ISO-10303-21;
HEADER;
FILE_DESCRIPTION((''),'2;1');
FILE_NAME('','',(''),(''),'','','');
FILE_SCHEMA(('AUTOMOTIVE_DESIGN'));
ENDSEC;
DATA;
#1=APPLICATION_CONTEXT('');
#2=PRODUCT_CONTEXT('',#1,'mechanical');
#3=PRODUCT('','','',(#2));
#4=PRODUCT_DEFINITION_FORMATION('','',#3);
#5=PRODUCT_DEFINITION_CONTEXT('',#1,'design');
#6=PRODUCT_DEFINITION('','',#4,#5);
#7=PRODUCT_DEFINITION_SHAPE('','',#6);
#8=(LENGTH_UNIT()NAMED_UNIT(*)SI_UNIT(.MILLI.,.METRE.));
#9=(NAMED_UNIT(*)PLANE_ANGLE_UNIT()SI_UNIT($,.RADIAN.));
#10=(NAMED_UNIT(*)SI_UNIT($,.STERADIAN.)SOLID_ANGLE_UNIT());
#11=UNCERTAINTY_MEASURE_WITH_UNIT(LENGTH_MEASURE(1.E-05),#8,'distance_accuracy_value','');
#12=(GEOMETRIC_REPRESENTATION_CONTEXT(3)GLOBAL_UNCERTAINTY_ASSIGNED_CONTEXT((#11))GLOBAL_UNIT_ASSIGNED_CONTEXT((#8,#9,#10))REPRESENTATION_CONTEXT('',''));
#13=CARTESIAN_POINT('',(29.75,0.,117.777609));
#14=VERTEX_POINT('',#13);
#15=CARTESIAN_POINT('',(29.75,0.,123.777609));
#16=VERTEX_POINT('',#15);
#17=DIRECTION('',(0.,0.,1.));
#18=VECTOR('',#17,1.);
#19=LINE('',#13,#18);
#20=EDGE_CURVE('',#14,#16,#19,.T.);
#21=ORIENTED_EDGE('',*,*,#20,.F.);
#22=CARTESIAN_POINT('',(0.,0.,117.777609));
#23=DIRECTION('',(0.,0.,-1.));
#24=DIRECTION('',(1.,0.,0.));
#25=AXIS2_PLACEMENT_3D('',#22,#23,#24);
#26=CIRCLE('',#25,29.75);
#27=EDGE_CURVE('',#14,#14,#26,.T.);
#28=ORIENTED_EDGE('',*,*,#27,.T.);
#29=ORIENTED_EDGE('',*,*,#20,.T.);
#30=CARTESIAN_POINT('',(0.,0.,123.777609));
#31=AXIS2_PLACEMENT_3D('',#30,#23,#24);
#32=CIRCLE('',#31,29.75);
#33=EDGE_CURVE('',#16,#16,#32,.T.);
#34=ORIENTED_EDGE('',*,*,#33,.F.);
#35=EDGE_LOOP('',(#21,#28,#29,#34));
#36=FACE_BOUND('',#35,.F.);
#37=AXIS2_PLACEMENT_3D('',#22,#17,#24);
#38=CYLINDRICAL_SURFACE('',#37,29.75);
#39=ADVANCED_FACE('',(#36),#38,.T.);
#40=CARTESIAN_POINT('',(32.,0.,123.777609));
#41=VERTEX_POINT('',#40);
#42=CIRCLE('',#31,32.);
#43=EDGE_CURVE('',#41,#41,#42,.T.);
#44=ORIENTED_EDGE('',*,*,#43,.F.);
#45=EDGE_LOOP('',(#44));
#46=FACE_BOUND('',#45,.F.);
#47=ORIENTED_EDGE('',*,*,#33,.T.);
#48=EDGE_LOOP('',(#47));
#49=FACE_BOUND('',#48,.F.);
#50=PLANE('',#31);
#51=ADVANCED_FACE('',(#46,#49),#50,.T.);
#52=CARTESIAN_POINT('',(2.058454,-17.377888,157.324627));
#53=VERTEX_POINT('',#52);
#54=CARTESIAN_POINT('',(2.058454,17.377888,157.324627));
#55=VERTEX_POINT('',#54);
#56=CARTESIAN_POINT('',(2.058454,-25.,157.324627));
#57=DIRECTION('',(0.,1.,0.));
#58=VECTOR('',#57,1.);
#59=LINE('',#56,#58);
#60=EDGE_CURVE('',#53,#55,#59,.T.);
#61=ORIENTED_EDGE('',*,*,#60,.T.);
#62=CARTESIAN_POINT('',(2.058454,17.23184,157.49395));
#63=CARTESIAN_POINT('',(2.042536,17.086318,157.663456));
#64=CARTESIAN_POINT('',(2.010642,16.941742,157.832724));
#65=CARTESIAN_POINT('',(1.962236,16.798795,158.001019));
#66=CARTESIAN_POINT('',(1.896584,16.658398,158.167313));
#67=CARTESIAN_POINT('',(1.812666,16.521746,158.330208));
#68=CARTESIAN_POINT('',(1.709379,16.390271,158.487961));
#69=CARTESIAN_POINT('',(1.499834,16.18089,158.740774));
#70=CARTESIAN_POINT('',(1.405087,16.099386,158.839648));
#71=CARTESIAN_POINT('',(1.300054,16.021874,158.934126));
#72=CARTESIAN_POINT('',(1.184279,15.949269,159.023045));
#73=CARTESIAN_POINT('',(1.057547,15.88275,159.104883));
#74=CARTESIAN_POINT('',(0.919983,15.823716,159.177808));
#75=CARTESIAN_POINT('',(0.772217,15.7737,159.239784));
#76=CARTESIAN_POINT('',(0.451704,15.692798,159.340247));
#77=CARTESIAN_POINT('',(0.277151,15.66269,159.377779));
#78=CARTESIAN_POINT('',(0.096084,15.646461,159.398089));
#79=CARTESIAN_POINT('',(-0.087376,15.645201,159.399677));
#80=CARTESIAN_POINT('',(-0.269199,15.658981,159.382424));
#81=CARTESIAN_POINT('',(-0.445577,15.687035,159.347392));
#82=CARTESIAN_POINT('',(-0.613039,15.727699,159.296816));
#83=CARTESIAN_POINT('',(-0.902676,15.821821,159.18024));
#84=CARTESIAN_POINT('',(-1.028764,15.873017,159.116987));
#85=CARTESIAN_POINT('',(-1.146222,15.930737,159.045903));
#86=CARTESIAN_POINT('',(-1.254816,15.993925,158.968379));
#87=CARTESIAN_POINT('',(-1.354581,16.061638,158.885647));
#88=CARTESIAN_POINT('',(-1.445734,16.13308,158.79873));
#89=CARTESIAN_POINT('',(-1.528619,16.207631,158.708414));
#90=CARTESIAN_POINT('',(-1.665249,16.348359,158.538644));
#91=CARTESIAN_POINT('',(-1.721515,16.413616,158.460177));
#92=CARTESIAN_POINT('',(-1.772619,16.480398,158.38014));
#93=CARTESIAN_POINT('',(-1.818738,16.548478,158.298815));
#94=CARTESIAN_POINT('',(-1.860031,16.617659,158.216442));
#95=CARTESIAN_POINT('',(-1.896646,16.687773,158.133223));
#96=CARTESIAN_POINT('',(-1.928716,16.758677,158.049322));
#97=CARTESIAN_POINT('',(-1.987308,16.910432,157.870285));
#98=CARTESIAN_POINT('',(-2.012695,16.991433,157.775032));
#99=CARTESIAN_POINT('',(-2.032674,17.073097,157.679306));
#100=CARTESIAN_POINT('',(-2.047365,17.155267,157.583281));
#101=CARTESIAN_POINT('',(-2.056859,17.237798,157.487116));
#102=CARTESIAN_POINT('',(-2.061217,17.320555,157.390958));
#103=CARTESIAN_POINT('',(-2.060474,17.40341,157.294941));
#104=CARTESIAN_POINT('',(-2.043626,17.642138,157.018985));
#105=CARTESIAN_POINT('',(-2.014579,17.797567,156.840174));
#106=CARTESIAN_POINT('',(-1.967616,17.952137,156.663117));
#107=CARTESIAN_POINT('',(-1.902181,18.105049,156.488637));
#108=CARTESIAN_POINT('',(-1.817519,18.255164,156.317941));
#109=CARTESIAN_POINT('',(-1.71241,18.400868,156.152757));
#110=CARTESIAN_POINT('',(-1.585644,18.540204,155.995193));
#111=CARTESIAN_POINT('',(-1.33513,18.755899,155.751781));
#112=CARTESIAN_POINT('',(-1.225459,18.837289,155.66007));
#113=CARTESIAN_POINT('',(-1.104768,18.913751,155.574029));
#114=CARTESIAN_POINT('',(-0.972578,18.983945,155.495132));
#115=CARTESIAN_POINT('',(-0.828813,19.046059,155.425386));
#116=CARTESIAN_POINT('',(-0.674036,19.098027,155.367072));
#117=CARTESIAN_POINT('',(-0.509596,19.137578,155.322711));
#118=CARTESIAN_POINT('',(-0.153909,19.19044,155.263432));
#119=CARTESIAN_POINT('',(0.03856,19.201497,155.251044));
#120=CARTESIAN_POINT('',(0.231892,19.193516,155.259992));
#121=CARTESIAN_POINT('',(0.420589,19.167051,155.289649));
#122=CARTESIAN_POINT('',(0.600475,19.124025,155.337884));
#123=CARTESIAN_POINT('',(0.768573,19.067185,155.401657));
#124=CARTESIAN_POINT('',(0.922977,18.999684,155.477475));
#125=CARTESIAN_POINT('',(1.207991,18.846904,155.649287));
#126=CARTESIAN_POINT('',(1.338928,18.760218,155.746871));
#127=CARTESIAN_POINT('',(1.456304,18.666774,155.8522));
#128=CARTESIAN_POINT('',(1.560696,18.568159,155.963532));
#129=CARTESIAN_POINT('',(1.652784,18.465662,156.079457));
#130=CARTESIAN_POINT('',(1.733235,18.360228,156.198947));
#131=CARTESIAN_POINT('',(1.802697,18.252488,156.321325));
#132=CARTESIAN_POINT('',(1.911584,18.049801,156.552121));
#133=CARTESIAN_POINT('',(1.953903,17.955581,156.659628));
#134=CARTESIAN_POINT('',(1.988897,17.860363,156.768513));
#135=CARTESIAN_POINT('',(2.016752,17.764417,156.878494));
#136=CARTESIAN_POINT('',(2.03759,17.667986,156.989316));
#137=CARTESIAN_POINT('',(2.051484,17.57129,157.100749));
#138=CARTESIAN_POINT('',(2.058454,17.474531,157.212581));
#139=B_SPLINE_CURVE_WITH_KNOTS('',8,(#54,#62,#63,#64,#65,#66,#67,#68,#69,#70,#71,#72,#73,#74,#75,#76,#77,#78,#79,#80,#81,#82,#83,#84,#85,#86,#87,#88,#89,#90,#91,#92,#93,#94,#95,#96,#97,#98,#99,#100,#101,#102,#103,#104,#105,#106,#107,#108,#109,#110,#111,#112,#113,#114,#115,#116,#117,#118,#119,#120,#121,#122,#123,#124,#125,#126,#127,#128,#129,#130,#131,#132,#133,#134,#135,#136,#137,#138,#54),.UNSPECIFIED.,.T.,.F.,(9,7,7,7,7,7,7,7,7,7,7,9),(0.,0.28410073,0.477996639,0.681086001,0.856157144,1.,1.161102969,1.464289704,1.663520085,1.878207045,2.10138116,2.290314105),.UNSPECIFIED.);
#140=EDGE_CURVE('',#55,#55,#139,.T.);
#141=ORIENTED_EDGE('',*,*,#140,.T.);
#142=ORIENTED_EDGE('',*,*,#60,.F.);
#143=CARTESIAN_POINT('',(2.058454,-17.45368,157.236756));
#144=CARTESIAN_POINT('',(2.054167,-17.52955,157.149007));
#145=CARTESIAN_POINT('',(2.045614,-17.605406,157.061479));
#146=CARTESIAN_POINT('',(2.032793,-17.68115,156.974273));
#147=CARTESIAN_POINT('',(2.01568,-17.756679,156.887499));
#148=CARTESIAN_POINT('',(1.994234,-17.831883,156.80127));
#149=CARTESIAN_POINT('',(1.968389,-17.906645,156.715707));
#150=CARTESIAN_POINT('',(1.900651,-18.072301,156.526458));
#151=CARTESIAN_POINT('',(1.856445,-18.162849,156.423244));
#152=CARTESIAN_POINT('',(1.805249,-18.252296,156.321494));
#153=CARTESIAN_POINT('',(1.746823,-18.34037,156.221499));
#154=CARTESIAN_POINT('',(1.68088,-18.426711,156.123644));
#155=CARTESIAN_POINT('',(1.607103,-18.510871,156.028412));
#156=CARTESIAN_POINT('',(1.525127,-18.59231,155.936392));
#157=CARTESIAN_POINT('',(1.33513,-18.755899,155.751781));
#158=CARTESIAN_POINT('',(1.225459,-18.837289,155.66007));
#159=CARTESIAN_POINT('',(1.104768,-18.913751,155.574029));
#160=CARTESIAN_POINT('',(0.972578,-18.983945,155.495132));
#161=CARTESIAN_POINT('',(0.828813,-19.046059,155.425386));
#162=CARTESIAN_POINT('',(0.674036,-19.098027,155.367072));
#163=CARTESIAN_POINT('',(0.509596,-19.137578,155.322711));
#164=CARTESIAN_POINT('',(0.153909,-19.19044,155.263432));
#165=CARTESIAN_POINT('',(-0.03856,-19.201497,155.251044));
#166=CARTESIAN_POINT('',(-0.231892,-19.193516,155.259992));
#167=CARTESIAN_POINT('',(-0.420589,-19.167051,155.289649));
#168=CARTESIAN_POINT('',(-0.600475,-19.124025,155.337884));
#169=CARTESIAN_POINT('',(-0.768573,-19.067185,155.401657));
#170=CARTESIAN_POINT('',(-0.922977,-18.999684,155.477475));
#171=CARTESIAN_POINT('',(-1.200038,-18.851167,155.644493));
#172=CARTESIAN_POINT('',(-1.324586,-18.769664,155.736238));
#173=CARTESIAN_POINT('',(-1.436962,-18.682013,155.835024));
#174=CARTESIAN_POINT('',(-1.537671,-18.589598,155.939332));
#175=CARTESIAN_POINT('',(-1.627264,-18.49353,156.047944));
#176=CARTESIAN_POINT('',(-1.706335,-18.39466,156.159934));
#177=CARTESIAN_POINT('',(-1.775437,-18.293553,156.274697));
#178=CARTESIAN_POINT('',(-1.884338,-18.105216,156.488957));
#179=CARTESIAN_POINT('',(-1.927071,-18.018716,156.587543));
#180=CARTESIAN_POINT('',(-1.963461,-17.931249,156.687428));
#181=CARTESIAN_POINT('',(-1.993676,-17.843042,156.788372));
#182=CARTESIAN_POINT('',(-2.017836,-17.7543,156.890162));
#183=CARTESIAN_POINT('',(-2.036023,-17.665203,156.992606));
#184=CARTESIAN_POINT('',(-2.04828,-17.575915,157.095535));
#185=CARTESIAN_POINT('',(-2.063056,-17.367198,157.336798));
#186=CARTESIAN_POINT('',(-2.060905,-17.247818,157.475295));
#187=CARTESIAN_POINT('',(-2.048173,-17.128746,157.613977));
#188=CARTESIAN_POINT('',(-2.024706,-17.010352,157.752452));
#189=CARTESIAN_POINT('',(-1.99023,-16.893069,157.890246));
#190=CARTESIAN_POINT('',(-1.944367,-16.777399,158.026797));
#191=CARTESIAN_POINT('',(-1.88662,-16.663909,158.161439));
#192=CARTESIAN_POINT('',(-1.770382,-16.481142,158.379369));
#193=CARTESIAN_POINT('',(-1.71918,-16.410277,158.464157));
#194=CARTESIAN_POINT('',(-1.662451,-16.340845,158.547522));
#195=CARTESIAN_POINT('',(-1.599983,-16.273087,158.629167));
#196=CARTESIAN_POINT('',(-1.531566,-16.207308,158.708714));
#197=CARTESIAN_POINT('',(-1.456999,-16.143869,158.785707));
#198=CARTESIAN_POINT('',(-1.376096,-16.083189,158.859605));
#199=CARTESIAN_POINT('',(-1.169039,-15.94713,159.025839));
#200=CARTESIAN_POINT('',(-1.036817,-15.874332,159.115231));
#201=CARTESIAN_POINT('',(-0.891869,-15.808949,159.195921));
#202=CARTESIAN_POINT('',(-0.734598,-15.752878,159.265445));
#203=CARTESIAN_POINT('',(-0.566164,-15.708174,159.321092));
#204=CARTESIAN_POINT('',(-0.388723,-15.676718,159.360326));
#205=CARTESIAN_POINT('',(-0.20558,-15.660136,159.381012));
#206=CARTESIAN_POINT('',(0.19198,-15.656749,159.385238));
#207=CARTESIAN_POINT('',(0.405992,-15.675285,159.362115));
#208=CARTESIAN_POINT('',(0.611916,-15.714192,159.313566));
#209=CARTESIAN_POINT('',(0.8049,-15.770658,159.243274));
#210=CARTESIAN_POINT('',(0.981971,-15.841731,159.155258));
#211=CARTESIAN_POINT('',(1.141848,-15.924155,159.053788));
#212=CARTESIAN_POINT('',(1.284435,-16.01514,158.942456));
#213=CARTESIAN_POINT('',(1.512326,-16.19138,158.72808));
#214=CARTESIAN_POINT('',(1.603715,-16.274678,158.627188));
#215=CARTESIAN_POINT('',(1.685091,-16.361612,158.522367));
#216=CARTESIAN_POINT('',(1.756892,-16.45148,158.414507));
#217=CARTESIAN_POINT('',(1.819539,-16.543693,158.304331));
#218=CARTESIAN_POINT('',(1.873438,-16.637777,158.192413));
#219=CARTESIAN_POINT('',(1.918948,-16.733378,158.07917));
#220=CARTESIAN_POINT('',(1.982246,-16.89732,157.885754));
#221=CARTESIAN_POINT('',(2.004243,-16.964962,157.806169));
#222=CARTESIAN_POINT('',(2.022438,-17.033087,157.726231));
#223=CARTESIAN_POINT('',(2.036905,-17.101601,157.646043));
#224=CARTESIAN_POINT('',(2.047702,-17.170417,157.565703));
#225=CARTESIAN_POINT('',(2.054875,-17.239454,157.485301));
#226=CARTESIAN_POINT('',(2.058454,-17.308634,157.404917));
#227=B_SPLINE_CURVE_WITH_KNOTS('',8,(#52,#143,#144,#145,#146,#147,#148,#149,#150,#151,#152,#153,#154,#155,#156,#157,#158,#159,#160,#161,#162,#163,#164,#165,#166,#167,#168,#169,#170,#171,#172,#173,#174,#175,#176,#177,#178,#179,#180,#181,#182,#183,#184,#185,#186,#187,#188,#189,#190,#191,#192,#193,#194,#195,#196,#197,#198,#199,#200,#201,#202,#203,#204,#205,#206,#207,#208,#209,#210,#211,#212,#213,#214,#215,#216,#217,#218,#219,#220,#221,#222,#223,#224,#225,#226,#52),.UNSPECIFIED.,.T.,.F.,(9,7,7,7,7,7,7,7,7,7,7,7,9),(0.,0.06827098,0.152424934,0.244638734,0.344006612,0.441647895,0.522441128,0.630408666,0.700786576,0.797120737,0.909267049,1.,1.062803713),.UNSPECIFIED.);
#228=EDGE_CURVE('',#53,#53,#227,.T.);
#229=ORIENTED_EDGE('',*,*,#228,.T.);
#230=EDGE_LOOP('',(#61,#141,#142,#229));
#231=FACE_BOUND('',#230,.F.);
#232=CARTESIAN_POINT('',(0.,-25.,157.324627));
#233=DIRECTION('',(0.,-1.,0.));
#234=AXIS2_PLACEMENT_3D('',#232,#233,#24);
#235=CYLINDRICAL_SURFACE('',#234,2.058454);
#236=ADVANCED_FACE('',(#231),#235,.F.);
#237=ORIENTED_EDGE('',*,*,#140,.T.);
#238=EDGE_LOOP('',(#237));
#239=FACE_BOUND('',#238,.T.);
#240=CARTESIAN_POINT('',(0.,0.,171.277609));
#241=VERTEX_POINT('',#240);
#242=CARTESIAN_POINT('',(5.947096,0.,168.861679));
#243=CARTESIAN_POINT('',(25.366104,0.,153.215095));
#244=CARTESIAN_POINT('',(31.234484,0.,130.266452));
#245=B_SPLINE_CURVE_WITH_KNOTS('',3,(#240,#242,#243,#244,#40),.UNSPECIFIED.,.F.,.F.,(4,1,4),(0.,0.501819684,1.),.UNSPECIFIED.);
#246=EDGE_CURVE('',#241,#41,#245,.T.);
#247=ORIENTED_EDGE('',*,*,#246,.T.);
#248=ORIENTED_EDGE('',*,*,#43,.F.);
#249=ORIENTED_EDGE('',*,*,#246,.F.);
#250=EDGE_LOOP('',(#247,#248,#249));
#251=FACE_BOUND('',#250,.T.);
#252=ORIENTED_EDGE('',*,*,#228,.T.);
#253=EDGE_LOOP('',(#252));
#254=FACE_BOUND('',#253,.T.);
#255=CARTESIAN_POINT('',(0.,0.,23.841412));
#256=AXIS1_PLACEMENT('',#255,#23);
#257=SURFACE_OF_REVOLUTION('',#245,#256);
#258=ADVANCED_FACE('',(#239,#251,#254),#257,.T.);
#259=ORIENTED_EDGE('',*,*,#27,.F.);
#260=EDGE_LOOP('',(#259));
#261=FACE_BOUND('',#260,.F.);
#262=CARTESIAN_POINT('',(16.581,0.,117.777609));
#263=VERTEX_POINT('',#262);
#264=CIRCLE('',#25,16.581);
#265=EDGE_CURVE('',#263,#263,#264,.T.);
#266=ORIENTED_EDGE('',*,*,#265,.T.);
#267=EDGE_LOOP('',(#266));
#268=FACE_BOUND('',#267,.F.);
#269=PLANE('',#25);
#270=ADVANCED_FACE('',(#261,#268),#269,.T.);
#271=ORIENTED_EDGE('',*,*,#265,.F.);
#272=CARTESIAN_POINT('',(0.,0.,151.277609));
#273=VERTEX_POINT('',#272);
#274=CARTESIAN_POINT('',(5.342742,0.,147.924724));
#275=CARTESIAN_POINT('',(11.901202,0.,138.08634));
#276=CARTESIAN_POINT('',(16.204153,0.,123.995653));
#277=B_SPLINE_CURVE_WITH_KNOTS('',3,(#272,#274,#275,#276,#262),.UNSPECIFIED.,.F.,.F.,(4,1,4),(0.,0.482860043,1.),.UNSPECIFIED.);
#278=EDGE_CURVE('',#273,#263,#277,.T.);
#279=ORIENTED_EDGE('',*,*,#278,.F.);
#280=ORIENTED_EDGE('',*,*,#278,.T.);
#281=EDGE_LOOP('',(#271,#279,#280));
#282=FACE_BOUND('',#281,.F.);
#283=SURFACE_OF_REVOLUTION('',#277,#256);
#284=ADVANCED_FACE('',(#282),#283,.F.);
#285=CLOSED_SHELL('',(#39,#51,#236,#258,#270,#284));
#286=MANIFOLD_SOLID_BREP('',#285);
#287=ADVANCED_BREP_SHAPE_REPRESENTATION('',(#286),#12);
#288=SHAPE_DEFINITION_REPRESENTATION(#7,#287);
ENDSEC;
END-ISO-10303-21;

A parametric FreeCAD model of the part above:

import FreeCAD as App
import Part
import Sketcher

V = App.Vector

doc = App.newDocument("Part")
params = doc.addObject("Spreadsheet::Sheet", "Params")
for row, (alias, value) in enumerate([
    ("sketch1_width", "2.25 mm"),
    ("revolution_angle", "360 deg"),
    ("pocket1_length", "47.2 mm"),
], start=1):
    params.set(f"A{row}", alias)
    params.set(f"B{row}", "=" + value)
    params.setAlias(f"B{row}", alias)

body = doc.addObject("PartDesign::Body", "Body")

sketch1 = body.newObject("Sketcher::SketchObject", "Sketch")
sketch1.AttachmentSupport = (doc.getObject("XZ_Plane"), [""])
sketch1.MapMode = "FlatFace"
sketch1.addGeometry(Part.LineSegment(V(16.581, 117.777609, 0), V(29.75, 117.777609, 0)), False)
sketch1.addGeometry(Part.LineSegment(V(29.75, 117.777609, 0), V(29.75, 123.777609, 0)), False)
sketch1.addGeometry(Part.LineSegment(V(29.75, 123.777609, 0), V(32, 123.777609, 0)), False)
sketch1.addGeometry(Part.BSplineCurve([V(0, 171.277609, 0), V(5.947096, 168.861679, 0), V(25.366104, 153.215095, 0), V(31.234484, 130.266452, 0), V(32, 123.777609, 0)], [4, 1, 4], [0, 0.501819684, 1], False, 3, [1, 1, 1, 1, 1], False), False)
sketch1.addGeometry(Part.LineSegment(V(0, 171.277609, 0), V(0, 151.277609, 0)), False)
sketch1.addGeometry(Part.BSplineCurve([V(0, 151.277609, 0), V(5.342742, 147.924724, 0), V(11.901202, 138.08634, 0), V(16.204153, 123.995653, 0), V(16.581, 117.777609, 0)], [4, 1, 4], [0, 0.482860043, 1], False, 3, [1, 1, 1, 1, 1], False), False)
sketch1.addConstraint(Sketcher.Constraint("Block", 3))
sketch1.addConstraint(Sketcher.Constraint("Block", 5))
sketch1.addConstraint(Sketcher.Constraint("Coincident", 0, 2, 1, 1))
sketch1.addConstraint(Sketcher.Constraint("Coincident", 1, 2, 2, 1))
sketch1.addConstraint(Sketcher.Constraint("Coincident", 2, 2, 3, 2))
sketch1.addConstraint(Sketcher.Constraint("Coincident", 3, 1, 4, 1))
sketch1.addConstraint(Sketcher.Constraint("Coincident", 4, 2, 5, 1))
sketch1.addConstraint(Sketcher.Constraint("Coincident", 5, 2, 0, 1))
sketch1.addConstraint(Sketcher.Constraint("Horizontal", 0))
sketch1.addConstraint(Sketcher.Constraint("Vertical", 1))
sketch1.addConstraint(Sketcher.Constraint("Horizontal", 2))
sketch1.addConstraint(Sketcher.Constraint("DistanceX", 2, 1, 2, 2, 2.25))
sketch1.setExpression("Constraints[11]", "Params.sketch1_width")
revolution = body.newObject("PartDesign::Revolution", "Revolution")
revolution.Profile = sketch1
revolution.ReferenceAxis = (sketch1, ["V_Axis"])
revolution.setExpression("Angle", "Params.revolution_angle")

sketch2 = body.newObject("Sketcher::SketchObject", "Sketch001")
sketch2.AttachmentSupport = (doc.getObject("XZ_Plane"), [""])
sketch2.MapMode = "FlatFace"
sketch2.AttachmentOffset = App.Placement(V(0, 0, 25), App.Rotation())
sketch2.addGeometry(Part.Circle(V(0, 157.3, 0), V(0, 0, 1), 2.1), False)
sketch2.addConstraint(Sketcher.Constraint("PointOnObject", 0, 3, -2))
sketch2.addConstraint(Sketcher.Constraint("Diameter", 0, 4.116908))
sketch2.addConstraint(Sketcher.Constraint("DistanceY", -1, 1, 0, 3, 157.324627))
pocket1 = body.newObject("PartDesign::Pocket", "Pocket")
pocket1.Profile = sketch2
pocket1.setExpression("Length", "Params.pocket1_length")

doc.recompute()
